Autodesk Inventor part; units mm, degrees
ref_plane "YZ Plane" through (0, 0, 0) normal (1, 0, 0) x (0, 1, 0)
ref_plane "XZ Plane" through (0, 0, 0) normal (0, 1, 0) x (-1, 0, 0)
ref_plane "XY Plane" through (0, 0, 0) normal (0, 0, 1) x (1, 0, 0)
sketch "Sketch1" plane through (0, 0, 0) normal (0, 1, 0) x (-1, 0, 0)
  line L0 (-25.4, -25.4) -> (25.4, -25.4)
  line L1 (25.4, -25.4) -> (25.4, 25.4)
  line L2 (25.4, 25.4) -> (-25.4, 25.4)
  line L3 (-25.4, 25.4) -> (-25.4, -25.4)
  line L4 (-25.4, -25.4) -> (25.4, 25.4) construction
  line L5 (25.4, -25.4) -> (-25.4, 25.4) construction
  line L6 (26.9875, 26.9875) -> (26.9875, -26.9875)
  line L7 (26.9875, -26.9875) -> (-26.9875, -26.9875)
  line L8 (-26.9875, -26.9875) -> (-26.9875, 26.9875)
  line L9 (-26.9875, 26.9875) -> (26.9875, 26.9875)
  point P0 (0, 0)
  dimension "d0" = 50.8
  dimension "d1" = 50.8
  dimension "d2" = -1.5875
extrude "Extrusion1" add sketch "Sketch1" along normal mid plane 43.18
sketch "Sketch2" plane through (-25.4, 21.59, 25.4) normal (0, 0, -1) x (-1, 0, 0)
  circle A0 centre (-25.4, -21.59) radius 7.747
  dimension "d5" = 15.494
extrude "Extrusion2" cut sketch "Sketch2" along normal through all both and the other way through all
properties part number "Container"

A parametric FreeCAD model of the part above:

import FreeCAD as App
import Part
import Sketcher
from FreeCAD import Vector
Q = App.Units.Quantity

doc = App.newDocument("Part")
body = doc.addObject("PartDesign::Body", "Body")

# Sketch on XZ plane
sketch1 = doc.addObject("Sketcher::SketchObject", "Sketch")
body.addObject(sketch1)
sketch1.AttachmentSupport = (doc.XZ_Plane, [""])
sketch1.MapMode = "FlatFace"
sketch1.addGeometry([
    Part.LineSegment(Vector(-27, -27, 0), Vector(-27, 27, 0)),  # 0
    Part.LineSegment(Vector(-27, 27, 0), Vector(27, 27, 0)),  # 1
    Part.LineSegment(Vector(27, 27, 0), Vector(27, -27, 0)),  # 2
    Part.LineSegment(Vector(27, -27, 0), Vector(-27, -27, 0)),  # 3
    Part.LineSegment(Vector(-25, -25, 0), Vector(25, -25, 0)),  # 4
    Part.LineSegment(Vector(25, -25, 0), Vector(25, 25, 0)),  # 5
    Part.LineSegment(Vector(25, 25, 0), Vector(-25, 25, 0)),  # 6
    Part.LineSegment(Vector(-25, 25, 0), Vector(-25, -25, 0)),  # 7
], False)
sketch1.addConstraint([
    Sketcher.Constraint("Coincident", 0, 2, 1, 1),
    Sketcher.Constraint("Coincident", 1, 2, 2, 1),
    Sketcher.Constraint("Coincident", 2, 2, 3, 1),
    Sketcher.Constraint("Coincident", 3, 2, 0, 1),
    Sketcher.Constraint("Coincident", 4, 2, 5, 1),
    Sketcher.Constraint("Coincident", 5, 2, 6, 1),
    Sketcher.Constraint("Coincident", 6, 2, 7, 1),
    Sketcher.Constraint("Coincident", 7, 2, 4, 1),
    Sketcher.Constraint("Vertical", 0),
    Sketcher.Constraint("Horizontal", 1),
    Sketcher.Constraint("Vertical", 2),
    Sketcher.Constraint("Horizontal", 3),
    Sketcher.Constraint("Horizontal", 4),
    Sketcher.Constraint("Vertical", 5),
    Sketcher.Constraint("Horizontal", 6),
    Sketcher.Constraint("Vertical", 7),
    Sketcher.Constraint("Symmetric", 0, 2, 2, 2, -1, 1),
    Sketcher.Constraint("Symmetric", 4, 2, 6, 2, -1, 1),
    Sketcher.Constraint("Equal", 3, 0),
    Sketcher.Constraint("Equal", 6, 5),
    Sketcher.Constraint("DistanceX", 4, 1, 4, 2, Q("2 in")),
    Sketcher.Constraint("DistanceX", 4, 2, 2, 2, Q("0.0625 in")),
])
pad1 = doc.addObject("PartDesign::Pad", "Pad")
body.addObject(pad1)
pad1.Profile = sketch1
pad1.Length = Q("1.7 in")
pad1.Midplane = True

# Sketch on XY plane
sketch2 = doc.addObject("Sketcher::SketchObject", "Sketch001")
body.addObject(sketch2)
sketch2.AttachmentSupport = (doc.XY_Plane, [""])
sketch2.MapMode = "FlatFace"
sketch2.AttachmentOffset = App.Placement(Vector(0, 0, 1 * 25.4), App.Rotation())
sketch2.addGeometry(Part.Circle(Vector(0, 0, 0), Vector(0, 0, 1), 8), False)
sketch2.addConstraint([
    Sketcher.Constraint("Coincident", 0, 3, -1, 1),
    Sketcher.Constraint("Diameter", 0, Q("0.61 in")),
])
pocket1 = doc.addObject("PartDesign::Pocket", "Pocket")
body.addObject(pocket1)
pocket1.Profile = sketch2
pocket1.Type = "ThroughAll"
pocket1.Midplane = True

doc.recompute()
